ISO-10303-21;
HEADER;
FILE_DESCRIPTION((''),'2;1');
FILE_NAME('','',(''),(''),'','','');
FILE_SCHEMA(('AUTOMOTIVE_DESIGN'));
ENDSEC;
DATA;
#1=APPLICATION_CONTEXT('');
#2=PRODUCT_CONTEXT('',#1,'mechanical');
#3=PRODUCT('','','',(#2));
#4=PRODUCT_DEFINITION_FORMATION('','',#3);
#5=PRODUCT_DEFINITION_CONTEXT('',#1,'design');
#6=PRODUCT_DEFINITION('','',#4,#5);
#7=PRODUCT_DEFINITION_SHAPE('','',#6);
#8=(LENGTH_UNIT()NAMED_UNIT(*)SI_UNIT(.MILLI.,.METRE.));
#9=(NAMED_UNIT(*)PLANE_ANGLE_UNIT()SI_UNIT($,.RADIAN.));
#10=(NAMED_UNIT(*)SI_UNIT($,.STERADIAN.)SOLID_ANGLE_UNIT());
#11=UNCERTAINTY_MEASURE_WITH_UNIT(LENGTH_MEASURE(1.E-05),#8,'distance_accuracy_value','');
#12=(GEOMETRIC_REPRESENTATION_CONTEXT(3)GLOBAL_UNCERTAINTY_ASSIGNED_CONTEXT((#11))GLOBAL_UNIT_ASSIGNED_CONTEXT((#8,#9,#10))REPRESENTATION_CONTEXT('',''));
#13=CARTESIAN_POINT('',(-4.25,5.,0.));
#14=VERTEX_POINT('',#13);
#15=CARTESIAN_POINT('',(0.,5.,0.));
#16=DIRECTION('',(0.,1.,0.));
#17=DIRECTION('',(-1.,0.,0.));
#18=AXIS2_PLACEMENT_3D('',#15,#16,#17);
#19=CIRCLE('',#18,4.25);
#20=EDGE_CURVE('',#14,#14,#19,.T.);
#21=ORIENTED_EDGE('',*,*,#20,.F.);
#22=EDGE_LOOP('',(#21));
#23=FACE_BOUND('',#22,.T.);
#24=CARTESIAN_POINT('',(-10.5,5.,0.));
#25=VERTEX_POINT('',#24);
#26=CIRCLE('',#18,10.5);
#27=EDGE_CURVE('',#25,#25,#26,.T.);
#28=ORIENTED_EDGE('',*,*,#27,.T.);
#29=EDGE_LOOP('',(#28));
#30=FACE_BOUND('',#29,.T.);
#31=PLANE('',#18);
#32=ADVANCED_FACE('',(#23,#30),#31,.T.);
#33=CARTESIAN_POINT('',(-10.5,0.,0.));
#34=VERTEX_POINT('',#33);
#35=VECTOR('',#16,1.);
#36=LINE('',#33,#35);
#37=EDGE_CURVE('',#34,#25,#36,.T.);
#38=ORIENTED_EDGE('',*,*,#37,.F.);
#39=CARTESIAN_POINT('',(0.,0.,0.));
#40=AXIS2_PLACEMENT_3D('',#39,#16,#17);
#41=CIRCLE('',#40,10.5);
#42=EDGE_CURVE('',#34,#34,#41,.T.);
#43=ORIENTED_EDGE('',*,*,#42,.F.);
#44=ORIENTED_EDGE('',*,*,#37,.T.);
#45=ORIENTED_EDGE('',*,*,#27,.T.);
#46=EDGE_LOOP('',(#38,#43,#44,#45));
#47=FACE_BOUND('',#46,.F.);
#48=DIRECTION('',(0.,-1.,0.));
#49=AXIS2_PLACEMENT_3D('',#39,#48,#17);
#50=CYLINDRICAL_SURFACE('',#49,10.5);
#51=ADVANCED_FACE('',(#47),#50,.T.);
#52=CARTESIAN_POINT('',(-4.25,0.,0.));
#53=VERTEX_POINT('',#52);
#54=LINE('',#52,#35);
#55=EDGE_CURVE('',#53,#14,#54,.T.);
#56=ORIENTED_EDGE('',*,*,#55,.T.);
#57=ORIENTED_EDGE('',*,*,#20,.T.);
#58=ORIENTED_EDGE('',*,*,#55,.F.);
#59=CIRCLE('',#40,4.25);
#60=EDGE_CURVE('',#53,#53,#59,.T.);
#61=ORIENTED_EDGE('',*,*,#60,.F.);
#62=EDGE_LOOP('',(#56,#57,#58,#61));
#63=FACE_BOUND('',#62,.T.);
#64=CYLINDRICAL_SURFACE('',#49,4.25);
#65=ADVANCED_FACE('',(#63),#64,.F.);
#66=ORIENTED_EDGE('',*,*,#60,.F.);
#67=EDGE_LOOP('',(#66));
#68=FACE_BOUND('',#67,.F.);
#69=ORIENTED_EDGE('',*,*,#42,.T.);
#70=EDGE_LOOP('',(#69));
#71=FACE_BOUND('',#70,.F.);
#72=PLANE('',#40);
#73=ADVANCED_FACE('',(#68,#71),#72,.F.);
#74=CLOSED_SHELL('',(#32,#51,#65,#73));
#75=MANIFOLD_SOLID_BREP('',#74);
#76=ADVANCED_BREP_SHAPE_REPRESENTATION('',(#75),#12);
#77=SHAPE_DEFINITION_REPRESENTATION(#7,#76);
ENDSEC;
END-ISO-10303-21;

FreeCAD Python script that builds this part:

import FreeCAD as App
import Part
import Sketcher

doc = App.newDocument("Part")
body = doc.addObject("PartDesign::Body", "Body")

sketch1 = doc.addObject("Sketcher::SketchObject", "Sketch")
body.addObject(sketch1)
sketch1.AttachmentSupport = (doc.XZ_Plane, [""])
sketch1.MapMode = "FlatFace"
sketch1.addGeometry(Part.Circle(App.Vector(0, 0, 0), App.Vector(0, 0, 1), 10.5), False)
sketch1.addGeometry(Part.Circle(App.Vector(0, 0, 0), App.Vector(0, 0, 1), 4.25), False)
sketch1.addConstraint(Sketcher.Constraint("Coincident", 0, 3, -1, 1))
sketch1.addConstraint(Sketcher.Constraint("Coincident", 1, 3, -1, 1))
sketch1.addConstraint(Sketcher.Constraint("Diameter", 0, 21.0))
sketch1.addConstraint(Sketcher.Constraint("Diameter", 1, 8.5))
pad1 = doc.addObject("PartDesign::Pad", "Pad")
body.addObject(pad1)
pad1.Profile = sketch1
pad1.Length = 5
pad1.Reversed = True

doc.recompute()
